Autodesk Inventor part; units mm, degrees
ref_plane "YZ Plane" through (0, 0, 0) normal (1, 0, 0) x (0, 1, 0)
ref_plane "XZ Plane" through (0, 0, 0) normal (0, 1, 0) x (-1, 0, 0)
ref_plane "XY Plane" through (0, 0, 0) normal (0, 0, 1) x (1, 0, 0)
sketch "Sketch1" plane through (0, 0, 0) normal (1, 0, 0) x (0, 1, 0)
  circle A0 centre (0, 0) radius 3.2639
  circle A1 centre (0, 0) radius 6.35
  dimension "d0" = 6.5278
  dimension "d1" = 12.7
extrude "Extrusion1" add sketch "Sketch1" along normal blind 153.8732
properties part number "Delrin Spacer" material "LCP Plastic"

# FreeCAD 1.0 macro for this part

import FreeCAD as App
import Part
import Sketcher
from FreeCAD import Vector
Q = App.Units.Quantity

doc = App.newDocument("Part")
body = doc.addObject("PartDesign::Body", "Body")

# Sketch on YZ plane
sketch1 = body.newObject("Sketcher::SketchObject", "Sketch")
sketch1.AttachmentSupport = (doc.getObject("YZ_Plane"), [""])
sketch1.MapMode = "FlatFace"
sketch1.addGeometry(Part.Circle(Vector(0, 0, 0), Vector(0, 0, 1), 6.3), False)
sketch1.addGeometry(Part.Circle(Vector(0, 0, 0), Vector(0, 0, 1), 3.3), False)
sketch1.addConstraint(Sketcher.Constraint("Coincident", 0, 3, -1, 1))
sketch1.addConstraint(Sketcher.Constraint("Coincident", 1, 3, -1, 1))
sketch1.addConstraint(Sketcher.Constraint("Diameter", 0, Q("0.5 in")))
sketch1.addConstraint(Sketcher.Constraint("Diameter", 1, Q("0.257 in")))
pad1 = body.newObject("PartDesign::Pad", "Pad")
pad1.Profile = sketch1
pad1.Length = Q("6.058 in")

doc.recompute()
